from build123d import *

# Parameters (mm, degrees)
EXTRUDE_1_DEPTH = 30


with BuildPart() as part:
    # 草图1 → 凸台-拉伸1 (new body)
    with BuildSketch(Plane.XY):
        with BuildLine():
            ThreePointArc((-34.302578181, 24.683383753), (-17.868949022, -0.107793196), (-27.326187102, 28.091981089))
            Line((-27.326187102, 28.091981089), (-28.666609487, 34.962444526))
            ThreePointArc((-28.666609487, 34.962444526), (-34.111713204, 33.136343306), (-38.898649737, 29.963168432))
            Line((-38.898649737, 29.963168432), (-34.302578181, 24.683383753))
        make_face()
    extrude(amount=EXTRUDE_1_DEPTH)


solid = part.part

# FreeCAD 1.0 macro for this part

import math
import FreeCAD as App
import Part
import Sketcher
from FreeCAD import Vector

doc = App.newDocument("Part")
body = doc.addObject("PartDesign::Body", "Body")

# Sketch on XY plane
sketch1 = doc.addObject("Sketcher::SketchObject", "Sketch")
body.addObject(sketch1)
sketch1.AttachmentSupport = (doc.XY_Plane, [""])
sketch1.MapMode = "FlatFace"
sketch1.addGeometry(Part.ArcOfCircle(Part.Circle(Vector(-24, 13, 0), Vector(0, 0, 1), 15), math.radians(131), math.radians(461)), False)
sketch1.addGeometry(Part.LineSegment(Vector(-27, 28, 0), Vector(-29, 35, 0)), False)
sketch1.addGeometry(Part.ArcOfCircle(Part.Circle(Vector(-24, 13, 0), Vector(0, 0, 1), 22), math.radians(101), math.radians(131)), False)
sketch1.addGeometry(Part.LineSegment(Vector(-39, 30, 0), Vector(-34, 25, 0)), False)
sketch1.addConstraint(Sketcher.Constraint("Coincident", 0, 2, 1, 1))
sketch1.addConstraint(Sketcher.Constraint("Coincident", 1, 2, 2, 1))
sketch1.addConstraint(Sketcher.Constraint("Coincident", 2, 2, 3, 1))
sketch1.addConstraint(Sketcher.Constraint("Coincident", 3, 2, 0, 1))
sketch1.addConstraint(Sketcher.Constraint("Coincident", 2, 3, 0, 3))
sketch1.addConstraint(Sketcher.Constraint("Radius", 0, 15.0))
sketch1.addConstraint(Sketcher.Constraint("Radius", 2, 22.0))
sketch1.addConstraint(Sketcher.Constraint("DistanceY", -1, 1, 0, 3, 13.369559))
sketch1.addConstraint(Sketcher.Constraint("DistanceY", -1, 1, 0, 2, 28.091981))
sketch1.addConstraint(Sketcher.Constraint("DistanceX", 1, 2, -1, 1, 28.666609))
sketch1.addConstraint(Sketcher.Constraint("DistanceX", 2, 2, -1, 1, 38.89865))
sketch1.addConstraint(Sketcher.Constraint("DistanceY", -1, 1, 2, 2, 29.963168))
sketch1.addConstraint(Sketcher.Constraint("DistanceX", 3, 2, -1, 1, 34.302578))
pad1 = doc.addObject("PartDesign::Pad", "Pad")
body.addObject(pad1)
pad1.Profile = sketch1
pad1.Length = 30

doc.recompute()
